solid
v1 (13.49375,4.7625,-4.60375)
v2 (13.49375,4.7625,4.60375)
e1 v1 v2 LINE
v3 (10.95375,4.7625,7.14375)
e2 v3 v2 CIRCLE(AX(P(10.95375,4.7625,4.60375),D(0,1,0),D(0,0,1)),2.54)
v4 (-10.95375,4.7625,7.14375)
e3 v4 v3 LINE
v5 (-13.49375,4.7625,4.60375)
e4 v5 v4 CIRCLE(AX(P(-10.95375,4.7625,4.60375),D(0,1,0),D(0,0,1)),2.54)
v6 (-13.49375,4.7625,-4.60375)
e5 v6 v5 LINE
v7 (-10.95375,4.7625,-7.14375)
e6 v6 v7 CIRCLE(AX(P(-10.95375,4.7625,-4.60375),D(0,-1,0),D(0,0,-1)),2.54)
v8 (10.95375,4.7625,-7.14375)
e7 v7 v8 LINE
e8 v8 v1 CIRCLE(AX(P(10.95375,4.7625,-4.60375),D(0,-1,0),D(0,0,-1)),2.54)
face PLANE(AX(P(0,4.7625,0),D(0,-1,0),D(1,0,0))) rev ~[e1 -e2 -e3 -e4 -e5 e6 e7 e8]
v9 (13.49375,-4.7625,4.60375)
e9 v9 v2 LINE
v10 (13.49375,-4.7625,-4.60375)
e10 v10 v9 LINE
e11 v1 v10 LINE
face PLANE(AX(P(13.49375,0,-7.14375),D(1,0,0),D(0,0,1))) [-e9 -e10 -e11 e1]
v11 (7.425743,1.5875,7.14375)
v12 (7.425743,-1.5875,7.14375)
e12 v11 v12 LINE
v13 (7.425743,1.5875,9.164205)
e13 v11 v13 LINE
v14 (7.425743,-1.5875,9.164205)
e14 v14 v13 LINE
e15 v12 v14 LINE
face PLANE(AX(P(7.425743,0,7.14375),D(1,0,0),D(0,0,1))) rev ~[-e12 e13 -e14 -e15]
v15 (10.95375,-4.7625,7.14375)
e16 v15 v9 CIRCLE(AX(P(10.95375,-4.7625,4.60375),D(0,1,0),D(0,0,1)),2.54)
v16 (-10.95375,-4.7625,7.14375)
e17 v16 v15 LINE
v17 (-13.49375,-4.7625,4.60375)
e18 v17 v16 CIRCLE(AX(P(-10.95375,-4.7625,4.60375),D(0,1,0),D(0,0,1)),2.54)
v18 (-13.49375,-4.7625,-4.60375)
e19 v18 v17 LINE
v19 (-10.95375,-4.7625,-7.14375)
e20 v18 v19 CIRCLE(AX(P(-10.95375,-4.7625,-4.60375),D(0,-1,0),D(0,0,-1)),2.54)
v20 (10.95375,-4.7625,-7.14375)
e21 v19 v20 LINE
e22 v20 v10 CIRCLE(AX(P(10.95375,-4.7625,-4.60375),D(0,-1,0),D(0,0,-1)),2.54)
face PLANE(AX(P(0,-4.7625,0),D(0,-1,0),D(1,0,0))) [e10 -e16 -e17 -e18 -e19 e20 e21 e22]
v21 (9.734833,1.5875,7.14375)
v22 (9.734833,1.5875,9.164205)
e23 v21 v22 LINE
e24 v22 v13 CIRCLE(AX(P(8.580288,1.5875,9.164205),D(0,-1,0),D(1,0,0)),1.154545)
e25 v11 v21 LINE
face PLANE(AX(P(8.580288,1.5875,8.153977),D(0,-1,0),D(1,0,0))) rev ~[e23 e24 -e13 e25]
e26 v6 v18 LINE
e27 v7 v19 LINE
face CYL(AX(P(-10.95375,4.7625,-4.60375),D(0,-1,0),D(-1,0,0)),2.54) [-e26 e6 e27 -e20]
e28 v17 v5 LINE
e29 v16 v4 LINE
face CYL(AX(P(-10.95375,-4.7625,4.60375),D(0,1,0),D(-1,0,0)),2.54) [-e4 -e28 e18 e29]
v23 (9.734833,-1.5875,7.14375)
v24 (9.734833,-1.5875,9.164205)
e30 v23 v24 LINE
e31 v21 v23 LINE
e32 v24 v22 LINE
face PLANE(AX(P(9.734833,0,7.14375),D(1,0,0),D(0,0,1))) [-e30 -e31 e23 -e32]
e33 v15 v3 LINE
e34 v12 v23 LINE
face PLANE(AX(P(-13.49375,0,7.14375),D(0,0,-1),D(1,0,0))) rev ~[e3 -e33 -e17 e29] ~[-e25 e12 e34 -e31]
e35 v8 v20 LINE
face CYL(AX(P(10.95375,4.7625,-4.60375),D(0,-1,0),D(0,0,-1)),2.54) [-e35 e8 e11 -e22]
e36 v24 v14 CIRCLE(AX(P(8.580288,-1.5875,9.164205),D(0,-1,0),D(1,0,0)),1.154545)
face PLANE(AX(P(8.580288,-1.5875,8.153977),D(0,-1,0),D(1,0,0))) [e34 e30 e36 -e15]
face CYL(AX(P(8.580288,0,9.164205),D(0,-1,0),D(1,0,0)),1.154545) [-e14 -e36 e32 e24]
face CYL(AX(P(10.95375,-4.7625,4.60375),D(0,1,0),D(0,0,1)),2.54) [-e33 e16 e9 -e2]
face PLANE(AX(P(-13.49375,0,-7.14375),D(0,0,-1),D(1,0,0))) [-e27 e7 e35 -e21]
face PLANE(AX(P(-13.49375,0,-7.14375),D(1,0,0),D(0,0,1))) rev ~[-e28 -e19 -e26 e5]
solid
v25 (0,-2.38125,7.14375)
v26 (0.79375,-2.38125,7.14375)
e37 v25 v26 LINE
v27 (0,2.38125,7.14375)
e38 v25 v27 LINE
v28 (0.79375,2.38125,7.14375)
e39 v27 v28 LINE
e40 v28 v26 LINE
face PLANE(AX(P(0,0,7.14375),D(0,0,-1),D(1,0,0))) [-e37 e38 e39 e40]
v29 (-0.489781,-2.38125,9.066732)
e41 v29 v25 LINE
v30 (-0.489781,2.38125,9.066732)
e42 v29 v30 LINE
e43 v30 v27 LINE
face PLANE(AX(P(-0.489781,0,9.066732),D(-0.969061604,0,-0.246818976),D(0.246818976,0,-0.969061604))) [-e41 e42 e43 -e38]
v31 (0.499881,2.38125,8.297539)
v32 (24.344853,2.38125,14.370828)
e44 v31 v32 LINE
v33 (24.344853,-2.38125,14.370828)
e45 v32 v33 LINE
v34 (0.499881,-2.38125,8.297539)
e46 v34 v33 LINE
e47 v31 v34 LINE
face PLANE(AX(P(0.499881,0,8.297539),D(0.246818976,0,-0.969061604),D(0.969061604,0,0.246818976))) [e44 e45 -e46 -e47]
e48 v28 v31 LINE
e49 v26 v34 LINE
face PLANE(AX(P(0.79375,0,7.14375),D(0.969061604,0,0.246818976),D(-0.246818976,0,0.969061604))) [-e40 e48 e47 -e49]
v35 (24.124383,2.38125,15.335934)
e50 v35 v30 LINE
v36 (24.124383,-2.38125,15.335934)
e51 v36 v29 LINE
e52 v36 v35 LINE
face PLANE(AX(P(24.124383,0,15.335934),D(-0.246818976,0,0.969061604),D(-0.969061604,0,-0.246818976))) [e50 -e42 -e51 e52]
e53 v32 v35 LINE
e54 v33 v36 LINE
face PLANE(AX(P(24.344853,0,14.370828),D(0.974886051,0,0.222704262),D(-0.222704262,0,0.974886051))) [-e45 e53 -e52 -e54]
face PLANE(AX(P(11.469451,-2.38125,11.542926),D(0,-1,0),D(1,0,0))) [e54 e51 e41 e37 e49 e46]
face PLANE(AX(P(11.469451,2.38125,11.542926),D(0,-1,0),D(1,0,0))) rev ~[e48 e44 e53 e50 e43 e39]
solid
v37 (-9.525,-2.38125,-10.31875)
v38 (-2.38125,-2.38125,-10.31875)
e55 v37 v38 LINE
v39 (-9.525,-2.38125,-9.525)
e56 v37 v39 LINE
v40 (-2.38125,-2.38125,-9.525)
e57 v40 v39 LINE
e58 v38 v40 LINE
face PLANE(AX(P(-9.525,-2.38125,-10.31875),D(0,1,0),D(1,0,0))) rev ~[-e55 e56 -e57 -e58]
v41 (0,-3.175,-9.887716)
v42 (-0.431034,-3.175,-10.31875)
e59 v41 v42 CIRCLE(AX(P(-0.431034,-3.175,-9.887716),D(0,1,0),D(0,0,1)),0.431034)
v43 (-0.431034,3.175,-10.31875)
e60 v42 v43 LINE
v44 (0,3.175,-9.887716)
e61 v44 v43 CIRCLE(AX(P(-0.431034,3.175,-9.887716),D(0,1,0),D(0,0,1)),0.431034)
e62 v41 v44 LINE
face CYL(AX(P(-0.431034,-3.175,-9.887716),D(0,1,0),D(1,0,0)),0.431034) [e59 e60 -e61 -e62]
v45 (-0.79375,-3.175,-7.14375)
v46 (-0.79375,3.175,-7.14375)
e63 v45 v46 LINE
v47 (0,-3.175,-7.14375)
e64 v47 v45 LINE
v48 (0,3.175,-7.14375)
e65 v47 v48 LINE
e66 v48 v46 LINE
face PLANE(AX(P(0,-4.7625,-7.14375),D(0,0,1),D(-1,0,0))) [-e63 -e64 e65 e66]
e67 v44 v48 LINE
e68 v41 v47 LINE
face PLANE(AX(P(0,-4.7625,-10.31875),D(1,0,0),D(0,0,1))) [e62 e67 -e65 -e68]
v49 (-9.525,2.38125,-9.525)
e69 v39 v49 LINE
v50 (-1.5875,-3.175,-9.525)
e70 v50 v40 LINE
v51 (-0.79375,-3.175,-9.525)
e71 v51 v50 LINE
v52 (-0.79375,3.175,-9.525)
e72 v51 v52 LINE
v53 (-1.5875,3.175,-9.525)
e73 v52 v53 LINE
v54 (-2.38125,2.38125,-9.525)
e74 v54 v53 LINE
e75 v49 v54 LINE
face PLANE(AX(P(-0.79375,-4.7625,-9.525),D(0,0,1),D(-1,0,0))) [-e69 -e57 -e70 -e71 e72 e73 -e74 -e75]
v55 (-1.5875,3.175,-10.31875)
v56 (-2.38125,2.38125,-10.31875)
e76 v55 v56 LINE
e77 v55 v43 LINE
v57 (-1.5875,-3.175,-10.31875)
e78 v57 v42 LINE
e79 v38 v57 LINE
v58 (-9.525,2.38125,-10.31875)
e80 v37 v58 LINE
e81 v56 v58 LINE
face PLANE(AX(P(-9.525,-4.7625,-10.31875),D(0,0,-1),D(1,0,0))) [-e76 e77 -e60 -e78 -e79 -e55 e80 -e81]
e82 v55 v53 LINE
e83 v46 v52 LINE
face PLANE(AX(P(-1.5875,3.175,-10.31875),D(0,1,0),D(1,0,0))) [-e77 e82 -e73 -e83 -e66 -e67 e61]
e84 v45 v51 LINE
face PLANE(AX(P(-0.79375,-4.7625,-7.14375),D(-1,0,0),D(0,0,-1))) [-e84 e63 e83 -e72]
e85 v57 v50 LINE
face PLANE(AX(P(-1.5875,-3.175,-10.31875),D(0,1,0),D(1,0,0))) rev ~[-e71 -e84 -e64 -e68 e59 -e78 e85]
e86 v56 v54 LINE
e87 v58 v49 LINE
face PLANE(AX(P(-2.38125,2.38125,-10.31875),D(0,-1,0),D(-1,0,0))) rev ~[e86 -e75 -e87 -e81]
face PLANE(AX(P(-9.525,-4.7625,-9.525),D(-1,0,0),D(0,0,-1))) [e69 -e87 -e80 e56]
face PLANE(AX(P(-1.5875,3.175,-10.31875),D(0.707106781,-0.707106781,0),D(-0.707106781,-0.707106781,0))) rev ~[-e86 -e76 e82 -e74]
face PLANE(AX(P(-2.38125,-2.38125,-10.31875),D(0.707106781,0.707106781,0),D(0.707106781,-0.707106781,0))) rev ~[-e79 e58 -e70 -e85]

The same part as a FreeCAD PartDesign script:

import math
import FreeCAD as App
import Part
import Sketcher
Q = App.Units.Quantity


def edges_at(feature, points):
    """Names of the edges that pass closest to the given points."""
    edges = feature.Shape.Edges
    near = lambda p: min(range(len(edges)), key=lambda i: edges[i].distToShape(Part.Vertex(*p))[0])
    return sorted({f"Edge{near(p) + 1}" for p in points})

doc = App.newDocument("Part")
params = doc.addObject("Spreadsheet::Sheet", "Params")
for row, (alias, value) in enumerate([
    ("sketch1_width", "1.0625 in"),
    ("sketch1_height", "0.5625 in"),
    ("pad1_length", "0.375 in"),
    ("pad2_length", "0.125 in"),
    ("fillet_radius", "0.1 in"),
    ("sketch3_width", "0.03125 in"),
    ("sketch3_width2", "0.34375 in"),
    ("sketch3_height", "0.09375 in"),
    ("pad3_length", "0.375 in"),
    ("sketch4_width", "0.0625 in"),
    ("sketch4_width2", "0.375 in"),
    ("sketch4_width3", "0.28125 in"),
    ("fillet2_radius", "0.431034 mm"),
    ("sketch5_length", "1 in"),
    ("sketch5_width", "0.03125 in"),
    ("sketch5_length2", "0.046875 in"),
    ("sketch5_length3", "0.96875 in"),
    ("sketch5_length4", "0.078125 in"),
    ("pad4_length", "0.1875 in"),
], start=1):
    params.set(f"A{row}", alias)
    params.set(f"B{row}", "=" + value)
    params.setAlias(f"B{row}", alias)

body = doc.addObject("PartDesign::Body", "Body")

# Sketch on XZ plane
sketch1 = body.newObject("Sketcher::SketchObject", "Sketch")
sketch1.AttachmentSupport = (doc.getObject("XZ_Plane"), [""])
sketch1.MapMode = "FlatFace"
sketch1.addGeometry(Part.LineSegment(App.Vector(-13, 7, 0), App.Vector(-13, -7, 0)), False)
sketch1.addGeometry(Part.LineSegment(App.Vector(-13, -7, 0), App.Vector(13, -7, 0)), False)
sketch1.addGeometry(Part.LineSegment(App.Vector(13, -7, 0), App.Vector(13, 7, 0)), False)
sketch1.addGeometry(Part.LineSegment(App.Vector(13, 7, 0), App.Vector(-13, 7, 0)), False)
sketch1.addConstraint(Sketcher.Constraint("Coincident", 0, 2, 1, 1))
sketch1.addConstraint(Sketcher.Constraint("Coincident", 1, 2, 2, 1))
sketch1.addConstraint(Sketcher.Constraint("Coincident", 2, 2, 3, 1))
sketch1.addConstraint(Sketcher.Constraint("Coincident", 3, 2, 0, 1))
sketch1.addConstraint(Sketcher.Constraint("Vertical", 0))
sketch1.addConstraint(Sketcher.Constraint("Horizontal", 1))
sketch1.addConstraint(Sketcher.Constraint("Vertical", 2))
sketch1.addConstraint(Sketcher.Constraint("Horizontal", 3))
sketch1.addConstraint(Sketcher.Constraint("Symmetric", 0, 2, 2, 2, -1, 1))
sketch1.addConstraint(Sketcher.Constraint("DistanceX", 1, 1, 1, 2, Q("1.0625 in")))
sketch1.addConstraint(Sketcher.Constraint("DistanceY", 0, 2, 0, 1, Q("0.5625 in")))
sketch1.setExpression("Constraints[9]", "Params.sketch1_width")
sketch1.setExpression("Constraints[10]", "Params.sketch1_height")
pad1 = body.newObject("PartDesign::Pad", "Pad")
pad1.Profile = sketch1
pad1.setExpression("Length", "Params.pad1_length")
pad1.Midplane = True

# Sketch on XZ plane
sketch2 = body.newObject("Sketcher::SketchObject", "Sketch001")
sketch2.AttachmentSupport = (doc.getObject("XZ_Plane"), [""])
sketch2.MapMode = "FlatFace"
sketch2.addGeometry(Part.LineSegment(App.Vector(7.4, 9.2, 0), App.Vector(7.4, 7.1, 0)), False)
sketch2.addGeometry(Part.LineSegment(App.Vector(7.4, 7.1, 0), App.Vector(9.7, 7.1, 0)), False)
sketch2.addGeometry(Part.LineSegment(App.Vector(9.7, 7.1, 0), App.Vector(9.7, 9.2, 0)), False)
sketch2.addGeometry(Part.ArcOfCircle(Part.Circle(App.Vector(8.6, 9.2, 0), App.Vector(0, 0, 1), 1.2), math.radians(0), math.radians(180)), False)
sketch2.addConstraint(Sketcher.Constraint("Coincident", 0, 2, 1, 1))
sketch2.addConstraint(Sketcher.Constraint("Coincident", 1, 2, 2, 1))
sketch2.addConstraint(Sketcher.Constraint("Tangent", 2, 2, 3, 1))
sketch2.addConstraint(Sketcher.Constraint("Tangent", 3, 2, 0, 1))
sketch2.addConstraint(Sketcher.Constraint("Vertical", 0))
sketch2.addConstraint(Sketcher.Constraint("Horizontal", 1))
sketch2.addConstraint(Sketcher.Constraint("Vertical", 2))
sketch2.addConstraint(Sketcher.Constraint("DistanceY", -1, 1, 0, 2, Q("0.28125 in")))
sketch2.addConstraint(Sketcher.Constraint("Radius", 3, 1.154545))
sketch2.addConstraint(Sketcher.Constraint("DistanceY", 0, 2, 0, 1, 2.020455))
sketch2.addConstraint(Sketcher.Constraint("DistanceX", -1, 1, 3, 3, 8.580288))
pad2 = body.newObject("PartDesign::Pad", "Pad001")
pad2.Profile = sketch2
pad2.setExpression("Length", "Params.pad2_length")
pad2.Midplane = True
doc.recompute()

fillet = body.newObject("PartDesign::Fillet", "Fillet")
fillet.Base = (pad2, edges_at(pad2, [
    (13.494, 0, 7.144),
    (-13.494, 0, 7.144),
    (13.494, 0, -7.144),
    (-13.494, 0, -7.144),
]))
fillet.setExpression("Radius", "Params.fillet_radius")
body2 = doc.addObject("PartDesign::Body", "Body001")

# Sketch on XZ plane
sketch3 = body2.newObject("Sketcher::SketchObject", "Sketch002")
sketch3.AttachmentSupport = (doc.getObject("XZ_Plane001"), [""])
sketch3.MapMode = "FlatFace"
sketch3.AttachmentOffset = App.Placement(App.Vector(0, 0, 0.1875 * 25.4), App.Rotation())
sketch3.addGeometry(Part.LineSegment(App.Vector(0, -7.1, 0), App.Vector(-0.8, -7.1, 0)), False)
sketch3.addGeometry(Part.LineSegment(App.Vector(-0.8, -7.1, 0), App.Vector(-0.8, -9.5, 0)), False)
sketch3.addGeometry(Part.LineSegment(App.Vector(-0.8, -9.5, 0), App.Vector(-9.5, -9.5, 0)), False)
sketch3.addGeometry(Part.LineSegment(App.Vector(-9.5, -9.5, 0), App.Vector(-9.5, -10.3, 0)), False)
sketch3.addGeometry(Part.LineSegment(App.Vector(-9.5, -10.3, 0), App.Vector(0, -10.3, 0)), False)
sketch3.addGeometry(Part.LineSegment(App.Vector(0, -10.3, 0), App.Vector(0, -7.1, 0)), False)
sketch3.addConstraint(Sketcher.Constraint("Coincident", 0, 2, 1, 1))
sketch3.addConstraint(Sketcher.Constraint("Coincident", 1, 2, 2, 1))
sketch3.addConstraint(Sketcher.Constraint("Coincident", 2, 2, 3, 1))
sketch3.addConstraint(Sketcher.Constraint("Coincident", 3, 2, 4, 1))
sketch3.addConstraint(Sketcher.Constraint("Coincident", 4, 2, 5, 1))
sketch3.addConstraint(Sketcher.Constraint("Coincident", 5, 2, 0, 1))
sketch3.addConstraint(Sketcher.Constraint("Horizontal", 0))
sketch3.addConstraint(Sketcher.Constraint("Vertical", 1))
sketch3.addConstraint(Sketcher.Constraint("Horizontal", 2))
sketch3.addConstraint(Sketcher.Constraint("Vertical", 3))
sketch3.addConstraint(Sketcher.Constraint("Horizontal", 4))
sketch3.addConstraint(Sketcher.Constraint("Vertical", 5))
sketch3.addConstraint(Sketcher.Constraint("PointOnObject", 4, 2, -2))
sketch3.addConstraint(Sketcher.Constraint("Equal", 0, 3))
sketch3.addConstraint(Sketcher.Constraint("DistanceX", 0, 2, 0, 1, Q("0.03125 in")))
sketch3.addConstraint(Sketcher.Constraint("DistanceX", 2, 2, 2, 1, Q("0.34375 in")))
sketch3.addConstraint(Sketcher.Constraint("DistanceY", 1, 2, 1, 1, Q("0.09375 in")))
sketch3.addConstraint(Sketcher.Constraint("DistanceY", 0, 2, -1, 1, Q("0.28125 in")))
sketch3.setExpression("Constraints[14]", "Params.sketch3_width")
sketch3.setExpression("Constraints[15]", "Params.sketch3_width2")
sketch3.setExpression("Constraints[16]", "Params.sketch3_height")
pad3 = body2.newObject("PartDesign::Pad", "Pad002")
pad3.Profile = sketch3
pad3.setExpression("Length", "Params.pad3_length")
pad3.Reversed = True

# Sketch on XY plane
sketch4 = body2.newObject("Sketcher::SketchObject", "Sketch003")
sketch4.AttachmentSupport = (doc.getObject("XY_Plane001"), [""])
sketch4.MapMode = "FlatFace"
sketch4.AttachmentOffset = App.Placement(App.Vector(0, 0, -0.40625 * 25.4), App.Rotation())
sketch4.addGeometry(Part.LineSegment(App.Vector(-1.6, -3.2, 0), App.Vector(0, -3.2, 0)), False)
sketch4.addGeometry(Part.LineSegment(App.Vector(0, -3.2, 0), App.Vector(0, -4.8, 0)), False)
sketch4.addGeometry(Part.LineSegment(App.Vector(0, -4.8, 0), App.Vector(-9.5, -4.8, 0)), False)
sketch4.addGeometry(Part.LineSegment(App.Vector(-9.5, -4.8, 0), App.Vector(-9.5, -2.4, 0)), False)
sketch4.addGeometry(Part.LineSegment(App.Vector(-9.5, -2.4, 0), App.Vector(-2.4, -2.4, 0)), False)
sketch4.addGeometry(Part.LineSegment(App.Vector(-2.4, -2.4, 0), App.Vector(-1.6, -3.2, 0)), False)
sketch4.addGeometry(Part.LineSegment(App.Vector(-2.4, 2.4, 0), App.Vector(-9.5, 2.4, 0)), False)
sketch4.addGeometry(Part.LineSegment(App.Vector(-9.5, 2.4, 0), App.Vector(-9.5, 4.8, 0)), False)
sketch4.addGeometry(Part.LineSegment(App.Vector(-9.5, 4.8, 0), App.Vector(0, 4.8, 0)), False)
sketch4.addGeometry(Part.LineSegment(App.Vector(0, 4.8, 0), App.Vector(0, 3.2, 0)), False)
sketch4.addGeometry(Part.LineSegment(App.Vector(0, 3.2, 0), App.Vector(-1.6, 3.2, 0)), False)
sketch4.addGeometry(Part.LineSegment(App.Vector(-1.6, 3.2, 0), App.Vector(-2.4, 2.4, 0)), False)
sketch4.addConstraint(Sketcher.Constraint("Coincident", 0, 2, 1, 1))
sketch4.addConstraint(Sketcher.Constraint("Coincident", 1, 2, 2, 1))
sketch4.addConstraint(Sketcher.Constraint("Coincident", 2, 2, 3, 1))
sketch4.addConstraint(Sketcher.Constraint("Coincident", 3, 2, 4, 1))
sketch4.addConstraint(Sketcher.Constraint("Coincident", 4, 2, 5, 1))
sketch4.addConstraint(Sketcher.Constraint("Coincident", 5, 2, 0, 1))
sketch4.addConstraint(Sketcher.Constraint("Coincident", 6, 2, 7, 1))
sketch4.addConstraint(Sketcher.Constraint("Coincident", 7, 2, 8, 1))
sketch4.addConstraint(Sketcher.Constraint("Coincident", 8, 2, 9, 1))
sketch4.addConstraint(Sketcher.Constraint("Coincident", 9, 2, 10, 1))
sketch4.addConstraint(Sketcher.Constraint("Coincident", 10, 2, 11, 1))
sketch4.addConstraint(Sketcher.Constraint("Coincident", 11, 2, 6, 1))
sketch4.addConstraint(Sketcher.Constraint("Horizontal", 0))
sketch4.addConstraint(Sketcher.Constraint("Vertical", 1))
sketch4.addConstraint(Sketcher.Constraint("Horizontal", 2))
sketch4.addConstraint(Sketcher.Constraint("Vertical", 3))
sketch4.addConstraint(Sketcher.Constraint("Horizontal", 4))
sketch4.addConstraint(Sketcher.Constraint("Horizontal", 6))
sketch4.addConstraint(Sketcher.Constraint("Vertical", 7))
sketch4.addConstraint(Sketcher.Constraint("Horizontal", 8))
sketch4.addConstraint(Sketcher.Constraint("Vertical", 9))
sketch4.addConstraint(Sketcher.Constraint("Horizontal", 10))
sketch4.addConstraint(Sketcher.Constraint("Symmetric", 1, 2, 8, 2, -1, 1))
sketch4.addConstraint(Sketcher.Constraint("Symmetric", 3, 2, 6, 2, -1))
sketch4.addConstraint(Sketcher.Constraint("Symmetric", 0, 2, 9, 2, -1))
sketch4.addConstraint(Sketcher.Constraint("Perpendicular", 5, 11))
sketch4.addConstraint(Sketcher.Constraint("Vertical", 5, 2, 10, 2))
sketch4.addConstraint(Sketcher.Constraint("Vertical", 4, 2, 11, 2))
sketch4.addConstraint(Sketcher.Constraint("Equal", 10, 1))
sketch4.addConstraint(Sketcher.Constraint("DistanceX", 0, 1, 0, 2, Q("0.0625 in")))
sketch4.addConstraint(Sketcher.Constraint("DistanceX", 2, 2, 2, 1, Q("0.375 in")))
sketch4.addConstraint(Sketcher.Constraint("DistanceX", 4, 1, 4, 2, Q("0.28125 in")))
sketch4.addConstraint(Sketcher.Constraint("DistanceY", 0, 2, 9, 2, Q("0.25 in")))
sketch4.setExpression("Constraints[29]", "Params.sketch4_width")
sketch4.setExpression("Constraints[30]", "Params.sketch4_width2")
sketch4.setExpression("Constraints[31]", "Params.sketch4_width3")
pocket1 = body2.newObject("PartDesign::Pocket", "Pocket")
pocket1.Profile = sketch4
pocket1.Type = "ThroughAll"
pocket1.Reversed = True
doc.recompute()

fillet2 = body2.newObject("PartDesign::Fillet", "Fillet001")
fillet2.Base = (pocket1, edges_at(pocket1, [(0, 0, -10.319)]))
fillet2.setExpression("Radius", "Params.fillet2_radius")
body3 = doc.addObject("PartDesign::Body", "Body002")

# Sketch on XZ plane
sketch5 = body3.newObject("Sketcher::SketchObject", "Sketch004")
sketch5.AttachmentSupport = (doc.getObject("XZ_Plane002"), [""])
sketch5.MapMode = "FlatFace"
sketch5.addGeometry(Part.LineSegment(App.Vector(0, 7.1, 0), App.Vector(0.8, 7.1, 0)), False)
sketch5.addGeometry(Part.LineSegment(App.Vector(0.8, 7.1, 0), App.Vector(0.5, 8.3, 0)), False)
sketch5.addGeometry(Part.LineSegment(App.Vector(0.5, 8.3, 0), App.Vector(24.3, 14.4, 0)), False)
sketch5.addGeometry(Part.LineSegment(App.Vector(24.3, 14.4, 0), App.Vector(24.1, 15.3, 0)), False)
sketch5.addGeometry(Part.LineSegment(App.Vector(24.1, 15.3, 0), App.Vector(-0.5, 9.1, 0)), False)
sketch5.addGeometry(Part.LineSegment(App.Vector(-0.5, 9.1, 0), App.Vector(0, 7.1, 0)), False)
sketch5.addConstraint(Sketcher.Constraint("Coincident", 0, 2, 1, 1))
sketch5.addConstraint(Sketcher.Constraint("Coincident", 1, 2, 2, 1))
sketch5.addConstraint(Sketcher.Constraint("Coincident", 2, 2, 3, 1))
sketch5.addConstraint(Sketcher.Constraint("Coincident", 3, 2, 4, 1))
sketch5.addConstraint(Sketcher.Constraint("Coincident", 4, 2, 5, 1))
sketch5.addConstraint(Sketcher.Constraint("Coincident", 5, 2, 0, 1))
sketch5.addConstraint(Sketcher.Constraint("Horizontal", 0))
sketch5.addConstraint(Sketcher.Constraint("PointOnObject", 5, 2, -2))
sketch5.addConstraint(Sketcher.Constraint("Perpendicular", 1, 2))
sketch5.addConstraint(Sketcher.Constraint("Parallel", 2, 4))
sketch5.addConstraint(Sketcher.Constraint("Perpendicular", 4, 5))
sketch5.addConstraint(Sketcher.Constraint("Distance", 4, Q("1 in")))
sketch5.addConstraint(Sketcher.Constraint("DistanceX", 0, 1, 0, 2, Q("0.03125 in")))
sketch5.addConstraint(Sketcher.Constraint("Distance", 1, Q("0.046875 in")))
sketch5.addConstraint(Sketcher.Constraint("Distance", 2, Q("0.96875 in")))
sketch5.addConstraint(Sketcher.Constraint("Distance", 5, Q("0.078125 in")))
sketch5.addConstraint(Sketcher.Constraint("DistanceY", -1, 1, 0, 2, Q("0.28125 in")))
sketch5.addConstraint(Sketcher.Constraint("DistanceY", 4, 2, 3, 2, 6.269202))
sketch5.setExpression("Constraints[11]", "Params.sketch5_length")
sketch5.setExpression("Constraints[12]", "Params.sketch5_width")
sketch5.setExpression("Constraints[13]", "Params.sketch5_length2")
sketch5.setExpression("Constraints[14]", "Params.sketch5_length3")
sketch5.setExpression("Constraints[15]", "Params.sketch5_length4")
pad4 = body3.newObject("PartDesign::Pad", "Pad003")
pad4.Profile = sketch5
pad4.setExpression("Length", "Params.pad4_length")
pad4.Midplane = True

doc.recompute()
